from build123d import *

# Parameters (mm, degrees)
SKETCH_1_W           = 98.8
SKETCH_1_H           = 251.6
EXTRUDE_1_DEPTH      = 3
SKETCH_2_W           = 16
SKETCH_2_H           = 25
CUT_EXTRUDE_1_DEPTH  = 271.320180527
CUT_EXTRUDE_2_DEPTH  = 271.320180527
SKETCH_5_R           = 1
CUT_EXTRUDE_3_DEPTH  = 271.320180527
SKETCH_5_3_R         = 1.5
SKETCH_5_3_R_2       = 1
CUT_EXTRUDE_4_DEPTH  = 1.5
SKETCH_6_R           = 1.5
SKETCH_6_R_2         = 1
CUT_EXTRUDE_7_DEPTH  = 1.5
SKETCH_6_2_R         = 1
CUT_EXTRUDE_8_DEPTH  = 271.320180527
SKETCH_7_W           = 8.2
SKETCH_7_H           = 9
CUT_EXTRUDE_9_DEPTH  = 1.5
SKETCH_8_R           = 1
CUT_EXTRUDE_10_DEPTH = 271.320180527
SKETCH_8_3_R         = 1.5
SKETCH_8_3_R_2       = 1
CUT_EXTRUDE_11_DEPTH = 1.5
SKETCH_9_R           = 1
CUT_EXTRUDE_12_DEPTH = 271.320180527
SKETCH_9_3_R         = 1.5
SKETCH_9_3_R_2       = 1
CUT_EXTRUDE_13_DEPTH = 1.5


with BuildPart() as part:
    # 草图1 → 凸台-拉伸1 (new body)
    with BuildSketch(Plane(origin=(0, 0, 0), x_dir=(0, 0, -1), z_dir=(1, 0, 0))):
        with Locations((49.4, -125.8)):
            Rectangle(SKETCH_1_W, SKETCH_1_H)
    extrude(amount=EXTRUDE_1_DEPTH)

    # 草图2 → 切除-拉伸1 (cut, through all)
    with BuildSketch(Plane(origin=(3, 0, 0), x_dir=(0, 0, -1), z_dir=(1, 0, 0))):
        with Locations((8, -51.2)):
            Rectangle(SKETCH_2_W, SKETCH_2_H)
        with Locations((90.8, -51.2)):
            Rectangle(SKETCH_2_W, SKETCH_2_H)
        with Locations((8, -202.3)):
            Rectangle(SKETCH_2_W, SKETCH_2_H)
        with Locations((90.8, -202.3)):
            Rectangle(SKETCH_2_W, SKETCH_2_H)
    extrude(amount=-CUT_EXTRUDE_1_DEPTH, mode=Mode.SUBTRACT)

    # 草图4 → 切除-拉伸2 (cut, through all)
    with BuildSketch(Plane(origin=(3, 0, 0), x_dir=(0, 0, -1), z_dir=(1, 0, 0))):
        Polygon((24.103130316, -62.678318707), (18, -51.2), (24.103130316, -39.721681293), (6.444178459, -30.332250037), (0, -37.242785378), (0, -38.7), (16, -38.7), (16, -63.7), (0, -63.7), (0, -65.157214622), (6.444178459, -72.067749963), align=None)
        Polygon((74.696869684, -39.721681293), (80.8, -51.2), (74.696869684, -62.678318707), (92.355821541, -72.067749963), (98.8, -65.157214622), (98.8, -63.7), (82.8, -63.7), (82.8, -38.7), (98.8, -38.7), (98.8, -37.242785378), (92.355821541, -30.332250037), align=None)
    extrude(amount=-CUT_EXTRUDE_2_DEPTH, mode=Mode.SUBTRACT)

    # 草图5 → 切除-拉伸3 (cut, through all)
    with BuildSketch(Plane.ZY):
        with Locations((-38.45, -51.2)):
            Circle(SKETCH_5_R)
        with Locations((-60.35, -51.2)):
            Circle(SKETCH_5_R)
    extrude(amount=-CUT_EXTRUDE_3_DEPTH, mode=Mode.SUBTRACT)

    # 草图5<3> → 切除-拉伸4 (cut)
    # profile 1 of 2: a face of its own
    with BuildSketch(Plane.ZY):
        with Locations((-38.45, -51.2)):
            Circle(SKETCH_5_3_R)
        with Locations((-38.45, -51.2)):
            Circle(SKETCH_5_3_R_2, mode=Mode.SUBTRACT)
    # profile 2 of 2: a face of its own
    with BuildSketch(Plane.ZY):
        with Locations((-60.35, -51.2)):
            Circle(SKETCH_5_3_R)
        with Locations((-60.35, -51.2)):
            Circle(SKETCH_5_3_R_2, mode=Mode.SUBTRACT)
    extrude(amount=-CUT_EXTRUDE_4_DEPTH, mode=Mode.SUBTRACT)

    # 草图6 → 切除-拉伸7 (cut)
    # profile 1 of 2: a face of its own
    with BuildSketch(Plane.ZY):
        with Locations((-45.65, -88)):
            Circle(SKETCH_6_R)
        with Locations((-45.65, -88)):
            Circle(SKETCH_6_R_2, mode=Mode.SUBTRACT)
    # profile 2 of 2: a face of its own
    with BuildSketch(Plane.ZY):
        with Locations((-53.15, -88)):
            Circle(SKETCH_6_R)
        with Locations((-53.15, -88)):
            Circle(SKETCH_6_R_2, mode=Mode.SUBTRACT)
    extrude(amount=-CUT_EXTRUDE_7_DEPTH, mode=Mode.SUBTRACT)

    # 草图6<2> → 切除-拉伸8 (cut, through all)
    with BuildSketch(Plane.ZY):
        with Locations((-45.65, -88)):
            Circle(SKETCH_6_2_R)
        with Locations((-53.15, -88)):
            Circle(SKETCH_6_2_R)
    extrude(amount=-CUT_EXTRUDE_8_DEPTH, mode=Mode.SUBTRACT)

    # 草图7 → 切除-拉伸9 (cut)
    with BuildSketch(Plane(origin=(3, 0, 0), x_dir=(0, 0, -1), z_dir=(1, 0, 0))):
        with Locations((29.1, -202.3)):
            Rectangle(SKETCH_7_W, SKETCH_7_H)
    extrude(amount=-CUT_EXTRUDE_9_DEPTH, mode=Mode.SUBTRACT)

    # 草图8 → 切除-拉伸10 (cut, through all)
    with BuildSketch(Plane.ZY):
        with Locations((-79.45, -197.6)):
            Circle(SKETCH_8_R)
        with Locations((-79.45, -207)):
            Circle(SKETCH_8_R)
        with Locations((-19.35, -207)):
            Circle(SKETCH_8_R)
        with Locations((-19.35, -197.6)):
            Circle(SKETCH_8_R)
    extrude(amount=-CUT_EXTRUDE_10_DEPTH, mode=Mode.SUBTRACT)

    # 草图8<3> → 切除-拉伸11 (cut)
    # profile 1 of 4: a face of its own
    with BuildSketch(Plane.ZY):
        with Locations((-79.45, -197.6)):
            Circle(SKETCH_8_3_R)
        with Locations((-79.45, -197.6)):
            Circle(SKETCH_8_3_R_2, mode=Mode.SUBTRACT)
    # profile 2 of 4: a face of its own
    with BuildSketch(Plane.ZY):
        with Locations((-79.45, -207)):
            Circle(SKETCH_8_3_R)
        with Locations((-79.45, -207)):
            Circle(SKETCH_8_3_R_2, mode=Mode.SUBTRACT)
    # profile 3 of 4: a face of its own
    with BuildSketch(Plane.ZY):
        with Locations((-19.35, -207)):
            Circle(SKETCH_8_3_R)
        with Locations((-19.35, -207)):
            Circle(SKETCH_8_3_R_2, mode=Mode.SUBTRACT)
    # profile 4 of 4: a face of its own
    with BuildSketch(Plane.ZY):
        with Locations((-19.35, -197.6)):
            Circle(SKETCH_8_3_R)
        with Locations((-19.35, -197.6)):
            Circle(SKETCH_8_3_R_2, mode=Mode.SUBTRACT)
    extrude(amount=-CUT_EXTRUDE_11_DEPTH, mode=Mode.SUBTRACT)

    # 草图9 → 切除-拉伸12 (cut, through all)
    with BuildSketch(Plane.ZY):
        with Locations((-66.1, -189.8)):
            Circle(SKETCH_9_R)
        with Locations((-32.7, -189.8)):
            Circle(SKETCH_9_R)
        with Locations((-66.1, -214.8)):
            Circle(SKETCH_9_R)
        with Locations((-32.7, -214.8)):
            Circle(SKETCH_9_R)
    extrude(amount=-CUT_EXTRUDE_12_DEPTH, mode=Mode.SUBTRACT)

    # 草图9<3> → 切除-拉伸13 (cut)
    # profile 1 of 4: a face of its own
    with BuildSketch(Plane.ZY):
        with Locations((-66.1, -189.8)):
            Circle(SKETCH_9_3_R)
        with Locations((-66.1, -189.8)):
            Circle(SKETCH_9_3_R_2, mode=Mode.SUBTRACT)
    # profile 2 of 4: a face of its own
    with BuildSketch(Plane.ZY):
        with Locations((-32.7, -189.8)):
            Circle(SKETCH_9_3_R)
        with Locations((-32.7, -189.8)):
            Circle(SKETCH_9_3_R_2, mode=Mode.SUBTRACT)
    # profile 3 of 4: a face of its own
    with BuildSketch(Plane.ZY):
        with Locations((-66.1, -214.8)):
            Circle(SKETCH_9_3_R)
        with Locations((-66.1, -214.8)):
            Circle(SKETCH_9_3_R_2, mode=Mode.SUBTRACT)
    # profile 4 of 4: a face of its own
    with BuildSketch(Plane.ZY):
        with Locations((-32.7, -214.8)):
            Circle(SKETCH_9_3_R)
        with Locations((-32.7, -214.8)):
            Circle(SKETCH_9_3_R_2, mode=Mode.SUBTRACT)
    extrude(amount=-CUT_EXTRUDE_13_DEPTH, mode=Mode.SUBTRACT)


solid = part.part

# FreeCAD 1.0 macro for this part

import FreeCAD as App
import Part
import Sketcher
Q = App.Units.Quantity

doc = App.newDocument("Part")
body = doc.addObject("PartDesign::Body", "Body")

# Sketch on YZ plane
sketch1 = doc.addObject("Sketcher::SketchObject", "Sketch")
body.addObject(sketch1)
sketch1.AttachmentSupport = (doc.YZ_Plane, [""])
sketch1.MapMode = "FlatFace"
sketch1.addGeometry([
    Part.LineSegment(App.Vector(0, 0, 0), App.Vector(-251.6, 0, 0)),
    Part.LineSegment(App.Vector(-251.6, 0, 0), App.Vector(-251.6, -98.8, 0)),
    Part.LineSegment(App.Vector(-251.6, -98.8, 0), App.Vector(0, -98.8, 0)),
    Part.LineSegment(App.Vector(0, -98.8, 0), App.Vector(0, 0, 0)),
], False)
sketch1.addConstraint([
    Sketcher.Constraint("Coincident", 0, 2, 1, 1),
    Sketcher.Constraint("Coincident", 1, 2, 2, 1),
    Sketcher.Constraint("Coincident", 2, 2, 3, 1),
    Sketcher.Constraint("Coincident", 3, 2, 0, 1),
    Sketcher.Constraint("Horizontal", 0),
    Sketcher.Constraint("Vertical", 1),
    Sketcher.Constraint("Horizontal", 2),
    Sketcher.Constraint("Vertical", 3),
    Sketcher.Constraint("Coincident", 3, 2, -1, 1),
    Sketcher.Constraint("DistanceX", 0, 2, 0, 1, 251.6),
    Sketcher.Constraint("DistanceY", 1, 2, 1, 1, 98.8),
])
pad1 = doc.addObject("PartDesign::Pad", "Pad")
body.addObject(pad1)
pad1.Profile = sketch1
pad1.Length = 3

# Sketch on YZ plane
sketch2 = doc.addObject("Sketcher::SketchObject", "Sketch001")
body.addObject(sketch2)
sketch2.AttachmentSupport = (doc.YZ_Plane, [""])
sketch2.MapMode = "FlatFace"
sketch2.AttachmentOffset = App.Placement(App.Vector(0, 0, 3), App.Rotation())
sketch2.addGeometry([
    Part.LineSegment(App.Vector(-38.7, 0, 0), App.Vector(-63.7, 0, 0)),  # 0
    Part.LineSegment(App.Vector(-63.7, 0, 0), App.Vector(-63.7, -16, 0)),  # 1
    Part.LineSegment(App.Vector(-63.7, -16, 0), App.Vector(-38.7, -16, 0)),  # 2
    Part.LineSegment(App.Vector(-38.7, -16, 0), App.Vector(-38.7, 0, 0)),  # 3
    Part.LineSegment(App.Vector(-38.7, -82.8, 0), App.Vector(-63.7, -82.8, 0)),  # 4
    Part.LineSegment(App.Vector(-63.7, -82.8, 0), App.Vector(-63.7, -98.8, 0)),  # 5
    Part.LineSegment(App.Vector(-63.7, -98.8, 0), App.Vector(-38.7, -98.8, 0)),  # 6
    Part.LineSegment(App.Vector(-38.7, -98.8, 0), App.Vector(-38.7, -82.8, 0)),  # 7
    Part.LineSegment(App.Vector(-189.8, 0, 0), App.Vector(-214.8, 0, 0)),  # 8
    Part.LineSegment(App.Vector(-214.8, 0, 0), App.Vector(-214.8, -16, 0)),  # 9
    Part.LineSegment(App.Vector(-214.8, -16, 0), App.Vector(-189.8, -16, 0)),  # 10
    Part.LineSegment(App.Vector(-189.8, -16, 0), App.Vector(-189.8, 0, 0)),  # 11
    Part.LineSegment(App.Vector(-189.8, -82.8, 0), App.Vector(-214.8, -82.8, 0)),  # 12
    Part.LineSegment(App.Vector(-214.8, -82.8, 0), App.Vector(-214.8, -98.8, 0)),  # 13
    Part.LineSegment(App.Vector(-214.8, -98.8, 0), App.Vector(-189.8, -98.8, 0)),  # 14
    Part.LineSegment(App.Vector(-189.8, -98.8, 0), App.Vector(-189.8, -82.8, 0)),  # 15
], False)
sketch2.addConstraint([
    Sketcher.Constraint("Coincident", 0, 2, 1, 1),
    Sketcher.Constraint("Coincident", 1, 2, 2, 1),
    Sketcher.Constraint("Coincident", 2, 2, 3, 1),
    Sketcher.Constraint("Coincident", 3, 2, 0, 1),
    Sketcher.Constraint("Coincident", 4, 2, 5, 1),
    Sketcher.Constraint("Coincident", 5, 2, 6, 1),
    Sketcher.Constraint("Coincident", 6, 2, 7, 1),
    Sketcher.Constraint("Coincident", 7, 2, 4, 1),
    Sketcher.Constraint("Coincident", 8, 2, 9, 1),
    Sketcher.Constraint("Coincident", 9, 2, 10, 1),
    Sketcher.Constraint("Coincident", 10, 2, 11, 1),
    Sketcher.Constraint("Coincident", 11, 2, 8, 1),
    Sketcher.Constraint("Coincident", 12, 2, 13, 1),
    Sketcher.Constraint("Coincident", 13, 2, 14, 1),
    Sketcher.Constraint("Coincident", 14, 2, 15, 1),
    Sketcher.Constraint("Coincident", 15, 2, 12, 1),
    Sketcher.Constraint("Horizontal", 0),
    Sketcher.Constraint("Vertical", 1),
    Sketcher.Constraint("Horizontal", 2),
    Sketcher.Constraint("Vertical", 3),
    Sketcher.Constraint("Horizontal", 4),
    Sketcher.Constraint("Vertical", 5),
    Sketcher.Constraint("Horizontal", 6),
    Sketcher.Constraint("Vertical", 7),
    Sketcher.Constraint("Horizontal", 8),
    Sketcher.Constraint("Vertical", 9),
    Sketcher.Constraint("Horizontal", 10),
    Sketcher.Constraint("Vertical", 11),
    Sketcher.Constraint("Horizontal", 12),
    Sketcher.Constraint("Vertical", 13),
    Sketcher.Constraint("Horizontal", 14),
    Sketcher.Constraint("Vertical", 15),
    Sketcher.Constraint("PointOnObject", 0, 2, -1),
    Sketcher.Constraint("PointOnObject", 8, 2, -1),
    Sketcher.Constraint("Horizontal", 2, 2, 9, 2),
    Sketcher.Constraint("Horizontal", 7, 2, 12, 2),
    Sketcher.Constraint("Horizontal", 6, 2, 13, 2),
    Sketcher.Constraint("Vertical", 1, 2, 4, 2),
    Sketcher.Constraint("Vertical", 3, 2, 6, 2),
    Sketcher.Constraint("Vertical", 9, 2, 12, 2),
    Sketcher.Constraint("Vertical", 11, 2, 14, 2),
    Sketcher.Constraint("Equal", 6, 8),
    Sketcher.Constraint("Equal", 3, 5),
    Sketcher.Constraint("DistanceX", 0, 2, 0, 1, 25.0),
    Sketcher.Constraint("DistanceY", 1, 2, 1, 1, 16.0),
    Sketcher.Constraint("DistanceX", 0, 2, -1, 1, 63.7),
    Sketcher.Constraint("DistanceY", 4, 2, -1, 1, 82.8),
    Sketcher.Constraint("DistanceX", 8, 2, -1, 1, 214.8),
])
pocket1 = doc.addObject("PartDesign::Pocket", "Pocket")
body.addObject(pocket1)
pocket1.Profile = sketch2
pocket1.Type = "ThroughAll"

# Sketch on YZ plane
sketch3 = doc.addObject("Sketcher::SketchObject", "Sketch002")
body.addObject(sketch3)
sketch3.AttachmentSupport = (doc.YZ_Plane, [""])
sketch3.MapMode = "FlatFace"
sketch3.AttachmentOffset = App.Placement(App.Vector(0, 0, 3), App.Rotation())
sketch3.addGeometry([
    Part.LineSegment(App.Vector(-62.678319, -24.10313, 0), App.Vector(-51.2, -18, 0)),  # 0
    Part.LineSegment(App.Vector(-51.2, -18, 0), App.Vector(-39.721681, -24.10313, 0)),  # 1
    Part.LineSegment(App.Vector(-39.721681, -24.10313, 0), App.Vector(-30.33225, -6.444178, 0)),  # 2
    Part.LineSegment(App.Vector(-30.33225, -6.444178, 0), App.Vector(-37.242785, 0, 0)),  # 3
    Part.LineSegment(App.Vector(-37.242785, 0, 0), App.Vector(-38.7, 0, 0)),  # 4
    Part.LineSegment(App.Vector(-38.7, 0, 0), App.Vector(-38.7, -16, 0)),  # 5
    Part.LineSegment(App.Vector(-38.7, -16, 0), App.Vector(-63.7, -16, 0)),  # 6
    Part.LineSegment(App.Vector(-63.7, -16, 0), App.Vector(-63.7, 0, 0)),  # 7
    Part.LineSegment(App.Vector(-63.7, 0, 0), App.Vector(-65.157215, 0, 0)),  # 8
    Part.LineSegment(App.Vector(-65.157215, 0, 0), App.Vector(-72.06775, -6.444178, 0)),  # 9
    Part.LineSegment(App.Vector(-72.06775, -6.444178, 0), App.Vector(-62.678319, -24.10313, 0)),  # 10
    Part.LineSegment(App.Vector(-39.721681, -74.69687, 0), App.Vector(-51.2, -80.8, 0)),  # 11
    Part.LineSegment(App.Vector(-51.2, -80.8, 0), App.Vector(-62.678319, -74.69687, 0)),  # 12
    Part.LineSegment(App.Vector(-62.678319, -74.69687, 0), App.Vector(-72.06775, -92.355822, 0)),  # 13
    Part.LineSegment(App.Vector(-72.06775, -92.355822, 0), App.Vector(-65.157215, -98.8, 0)),  # 14
    Part.LineSegment(App.Vector(-65.157215, -98.8, 0), App.Vector(-63.7, -98.8, 0)),  # 15
    Part.LineSegment(App.Vector(-63.7, -98.8, 0), App.Vector(-63.7, -82.8, 0)),  # 16
    Part.LineSegment(App.Vector(-63.7, -82.8, 0), App.Vector(-38.7, -82.8, 0)),  # 17
    Part.LineSegment(App.Vector(-38.7, -82.8, 0), App.Vector(-38.7, -98.8, 0)),  # 18
    Part.LineSegment(App.Vector(-38.7, -98.8, 0), App.Vector(-37.242785, -98.8, 0)),  # 19
    Part.LineSegment(App.Vector(-37.242785, -98.8, 0), App.Vector(-30.33225, -92.355822, 0)),  # 20
    Part.LineSegment(App.Vector(-30.33225, -92.355822, 0), App.Vector(-39.721681, -74.69687, 0)),  # 21
], False)
sketch3.addConstraint([
    Sketcher.Constraint("Coincident", 0, 2, 1, 1),
    Sketcher.Constraint("Coincident", 1, 2, 2, 1),
    Sketcher.Constraint("Coincident", 2, 2, 3, 1),
    Sketcher.Constraint("Coincident", 3, 2, 4, 1),
    Sketcher.Constraint("Coincident", 4, 2, 5, 1),
    Sketcher.Constraint("Coincident", 5, 2, 6, 1),
    Sketcher.Constraint("Coincident", 6, 2, 7, 1),
    Sketcher.Constraint("Coincident", 7, 2, 8, 1),
    Sketcher.Constraint("Coincident", 8, 2, 9, 1),
    Sketcher.Constraint("Coincident", 9, 2, 10, 1),
    Sketcher.Constraint("Coincident", 10, 2, 0, 1),
    Sketcher.Constraint("Coincident", 11, 2, 12, 1),
    Sketcher.Constraint("Coincident", 12, 2, 13, 1),
    Sketcher.Constraint("Coincident", 13, 2, 14, 1),
    Sketcher.Constraint("Coincident", 14, 2, 15, 1),
    Sketcher.Constraint("Coincident", 15, 2, 16, 1),
    Sketcher.Constraint("Coincident", 16, 2, 17, 1),
    Sketcher.Constraint("Coincident", 17, 2, 18, 1),
    Sketcher.Constraint("Coincident", 18, 2, 19, 1),
    Sketcher.Constraint("Coincident", 19, 2, 20, 1),
    Sketcher.Constraint("Coincident", 20, 2, 21, 1),
    Sketcher.Constraint("Coincident", 21, 2, 11, 1),
    Sketcher.Constraint("Horizontal", 4),
    Sketcher.Constraint("Vertical", 5),
    Sketcher.Constraint("Horizontal", 6),
    Sketcher.Constraint("Vertical", 7),
    Sketcher.Constraint("Horizontal", 8),
    Sketcher.Constraint("Horizontal", 15),
    Sketcher.Constraint("Vertical", 16),
    Sketcher.Constraint("Horizontal", 17),
    Sketcher.Constraint("Vertical", 18),
    Sketcher.Constraint("Horizontal", 19),
    Sketcher.Constraint("PointOnObject", 3, 2, -1),
    Sketcher.Constraint("PointOnObject", 7, 2, -1),
    Sketcher.Constraint("Perpendicular", 1, 2),
    Sketcher.Constraint("Perpendicular", 0, 10),
    Sketcher.Constraint("Perpendicular", 10, 11),
    Sketcher.Constraint("Perpendicular", 2, 12),
    Sketcher.Constraint("Perpendicular", 12, 13),
    Sketcher.Constraint("Parallel", 3, 14),
    Sketcher.Constraint("Parallel", 9, 20),
    Sketcher.Constraint("Perpendicular", 11, 21),
    Sketcher.Constraint("Horizontal", 2, 2, 9, 2),
    Sketcher.Constraint("Horizontal", 1, 2, 10, 2),
    Sketcher.Constraint("Horizontal", 15, 2, 18, 2),
    Sketcher.Constraint("Horizontal", 13, 2, 20, 2),
    Sketcher.Constraint("Horizontal", 12, 2, 21, 2),
    Sketcher.Constraint("Vertical", 0, 2, 11, 2),
    Sketcher.Constraint("Vertical", 10, 2, 12, 2),
    Sketcher.Constraint("Vertical", 9, 2, 13, 2),
    Sketcher.Constraint("Vertical", 8, 2, 14, 2),
    Sketcher.Constraint("Vertical", 7, 2, 15, 2),
    Sketcher.Constraint("Vertical", 5, 2, 17, 2),
    Sketcher.Constraint("Vertical", 3, 2, 19, 2),
    Sketcher.Constraint("Vertical", 2, 2, 20, 2),
    Sketcher.Constraint("Equal", 4, 8),
    Sketcher.Constraint("Equal", 7, 16),
    Sketcher.Constraint("DistanceX", 6, 2, 6, 1, 25.0),
    Sketcher.Constraint("DistanceY", 5, 2, 5, 1, 16.0),
    Sketcher.Constraint("Angle", 0, Q("28 deg")),
    Sketcher.Constraint("Angle", 3, Q("137 deg")),
    Sketcher.Constraint("Distance", 0, 13.0),
    Sketcher.Constraint("Distance", 2, 20.0),
    Sketcher.Constraint("DistanceY", 0, 2, -1, 1, 18.0),
    Sketcher.Constraint("DistanceX", 0, 2, -1, 1, 51.2),
    Sketcher.Constraint("DistanceY", 11, 2, -1, 1, 80.8),
])
pocket2 = doc.addObject("PartDesign::Pocket", "Pocket001")
body.addObject(pocket2)
pocket2.Profile = sketch3
pocket2.Type = "ThroughAll"

# Sketch on YZ plane
sketch4 = doc.addObject("Sketcher::SketchObject", "Sketch003")
body.addObject(sketch4)
sketch4.AttachmentSupport = (doc.YZ_Plane, [""])
sketch4.MapMode = "FlatFace"
sketch4.addGeometry([
    Part.Circle(App.Vector(-51.2, -38.45, 0), App.Vector(0, 0, 1), 1),
    Part.Circle(App.Vector(-51.2, -60.35, 0), App.Vector(0, 0, 1), 1),
], False)
sketch4.addConstraint([
    Sketcher.Constraint("Equal", 0, 1),
    Sketcher.Constraint("Vertical", 0, 3, 1, 3),
    Sketcher.Constraint("Diameter", 0, 2.0),
    Sketcher.Constraint("DistanceX", 0, 3, -1, 1, 51.2),
    Sketcher.Constraint("DistanceY", 1, 3, 0, 3, 21.9),
    Sketcher.Constraint("DistanceY", 0, 3, -1, 1, 38.45),
])
pocket3 = doc.addObject("PartDesign::Pocket", "Pocket002")
body.addObject(pocket3)
pocket3.Profile = sketch4
pocket3.Type = "ThroughAll"
pocket3.Reversed = True

# Sketch on YZ plane
sketch5 = doc.addObject("Sketcher::SketchObject", "Sketch004")
body.addObject(sketch5)
sketch5.AttachmentSupport = (doc.YZ_Plane, [""])
sketch5.MapMode = "FlatFace"
sketch5.addGeometry([
    Part.Circle(App.Vector(-51.2, -38.45, 0), App.Vector(0, 0, 1), 1.5),
    Part.Circle(App.Vector(-51.2, -38.45, 0), App.Vector(0, 0, 1), 1),
    Part.Circle(App.Vector(-51.2, -60.35, 0), App.Vector(0, 0, 1), 1.5),
    Part.Circle(App.Vector(-51.2, -60.35, 0), App.Vector(0, 0, 1), 1),
], False)
sketch5.addConstraint([
    Sketcher.Constraint("Coincident", 1, 3, 0, 3),
    Sketcher.Constraint("Coincident", 3, 3, 2, 3),
    Sketcher.Constraint("Equal", 0, 2),
    Sketcher.Constraint("Equal", 1, 3),
    Sketcher.Constraint("Vertical", 1, 3, 2, 3),
    Sketcher.Constraint("Diameter", 0, 3.0),
    Sketcher.Constraint("Diameter", 1, 2.0),
    Sketcher.Constraint("DistanceX", 0, 3, -1, 1, 51.2),
    Sketcher.Constraint("DistanceY", 2, 3, 0, 3, 21.9),
    Sketcher.Constraint("DistanceY", 0, 3, -1, 1, 38.45),
])
pocket4 = doc.addObject("PartDesign::Pocket", "Pocket003")
body.addObject(pocket4)
pocket4.Profile = sketch5
pocket4.Length = 1.5
pocket4.Reversed = True

# Sketch on YZ plane
sketch6 = doc.addObject("Sketcher::SketchObject", "Sketch005")
body.addObject(sketch6)
sketch6.AttachmentSupport = (doc.YZ_Plane, [""])
sketch6.MapMode = "FlatFace"
sketch6.addGeometry([
    Part.Circle(App.Vector(-88, -45.65, 0), App.Vector(0, 0, 1), 1.5),
    Part.Circle(App.Vector(-88, -45.65, 0), App.Vector(0, 0, 1), 1),
    Part.Circle(App.Vector(-88, -53.15, 0), App.Vector(0, 0, 1), 1.5),
    Part.Circle(App.Vector(-88, -53.15, 0), App.Vector(0, 0, 1), 1),
], False)
sketch6.addConstraint([
    Sketcher.Constraint("Coincident", 1, 3, 0, 3),
    Sketcher.Constraint("Coincident", 3, 3, 2, 3),
    Sketcher.Constraint("Equal", 0, 2),
    Sketcher.Constraint("Equal", 1, 3),
    Sketcher.Constraint("Vertical", 1, 3, 2, 3),
    Sketcher.Constraint("Diameter", 0, 3.0),
    Sketcher.Constraint("Diameter", 1, 2.0),
    Sketcher.Constraint("DistanceX", 0, 3, -1, 1, 88.0),
    Sketcher.Constraint("DistanceY", 2, 3, 0, 3, 7.5),
    Sketcher.Constraint("DistanceY", 0, 3, -1, 1, 45.65),
])
pocket5 = doc.addObject("PartDesign::Pocket", "Pocket004")
body.addObject(pocket5)
pocket5.Profile = sketch6
pocket5.Length = 1.5
pocket5.Reversed = True

# Sketch on YZ plane
sketch7 = doc.addObject("Sketcher::SketchObject", "Sketch006")
body.addObject(sketch7)
sketch7.AttachmentSupport = (doc.YZ_Plane, [""])
sketch7.MapMode = "FlatFace"
sketch7.addGeometry([
    Part.Circle(App.Vector(-88, -45.65, 0), App.Vector(0, 0, 1), 1),
    Part.Circle(App.Vector(-88, -53.15, 0), App.Vector(0, 0, 1), 1),
], False)
sketch7.addConstraint([
    Sketcher.Constraint("Equal", 0, 1),
    Sketcher.Constraint("Vertical", 0, 3, 1, 3),
    Sketcher.Constraint("Diameter", 0, 2.0),
    Sketcher.Constraint("DistanceX", 0, 3, -1, 1, 88.0),
    Sketcher.Constraint("DistanceY", 1, 3, 0, 3, 7.5),
    Sketcher.Constraint("DistanceY", 0, 3, -1, 1, 45.65),
])
pocket6 = doc.addObject("PartDesign::Pocket", "Pocket005")
body.addObject(pocket6)
pocket6.Profile = sketch7
pocket6.Type = "ThroughAll"
pocket6.Reversed = True

# Sketch on YZ plane
sketch8 = doc.addObject("Sketcher::SketchObject", "Sketch007")
body.addObject(sketch8)
sketch8.AttachmentSupport = (doc.YZ_Plane, [""])
sketch8.MapMode = "FlatFace"
sketch8.AttachmentOffset = App.Placement(App.Vector(0, 0, 3), App.Rotation())
sketch8.addGeometry([
    Part.LineSegment(App.Vector(-197.8, -25, 0), App.Vector(-206.8, -25, 0)),
    Part.LineSegment(App.Vector(-206.8, -25, 0), App.Vector(-206.8, -33.2, 0)),
    Part.LineSegment(App.Vector(-206.8, -33.2, 0), App.Vector(-197.8, -33.2, 0)),
    Part.LineSegment(App.Vector(-197.8, -33.2, 0), App.Vector(-197.8, -25, 0)),
], False)
sketch8.addConstraint([
    Sketcher.Constraint("Coincident", 0, 2, 1, 1),
    Sketcher.Constraint("Coincident", 1, 2, 2, 1),
    Sketcher.Constraint("Coincident", 2, 2, 3, 1),
    Sketcher.Constraint("Coincident", 3, 2, 0, 1),
    Sketcher.Constraint("Horizontal", 0),
    Sketcher.Constraint("Vertical", 1),
    Sketcher.Constraint("Horizontal", 2),
    Sketcher.Constraint("Vertical", 3),
    Sketcher.Constraint("DistanceX", 0, 2, 0, 1, 9.0),
    Sketcher.Constraint("DistanceY", 1, 2, 1, 1, 8.2),
    Sketcher.Constraint("DistanceY", 0, 2, -1, 1, 25.0),
    Sketcher.Constraint("DistanceX", 0, 2, -1, 1, 206.8),
])
pocket7 = doc.addObject("PartDesign::Pocket", "Pocket006")
body.addObject(pocket7)
pocket7.Profile = sketch8
pocket7.Length = 1.5

# Sketch on YZ plane
sketch9 = doc.addObject("Sketcher::SketchObject", "Sketch008")
body.addObject(sketch9)
sketch9.AttachmentSupport = (doc.YZ_Plane, [""])
sketch9.MapMode = "FlatFace"
sketch9.addGeometry([
    Part.Circle(App.Vector(-197.6, -79.45, 0), App.Vector(0, 0, 1), 1),
    Part.Circle(App.Vector(-207, -79.45, 0), App.Vector(0, 0, 1), 1),
    Part.Circle(App.Vector(-207, -19.35, 0), App.Vector(0, 0, 1), 1),
    Part.Circle(App.Vector(-197.6, -19.35, 0), App.Vector(0, 0, 1), 1),
], False)
sketch9.addConstraint([
    Sketcher.Constraint("Equal", 0, 1),
    Sketcher.Constraint("Equal", 1, 2),
    Sketcher.Constraint("Equal", 2, 3),
    Sketcher.Constraint("Horizontal", 0, 3, 1, 3),
    Sketcher.Constraint("Horizontal", 2, 3, 3, 3),
    Sketcher.Constraint("Vertical", 1, 3, 2, 3),
    Sketcher.Constraint("Vertical", 0, 3, 3, 3),
    Sketcher.Constraint("Diameter", 0, 2.0),
    Sketcher.Constraint("DistanceX", 1, 3, -1, 1, 207.0),
    Sketcher.Constraint("DistanceX", 0, 3, -1, 1, 197.6),
    Sketcher.Constraint("DistanceY", 1, 3, 2, 3, 60.1),
    Sketcher.Constraint("DistanceY", 0, 3, -1, 1, 79.45),
])
pocket8 = doc.addObject("PartDesign::Pocket", "Pocket007")
body.addObject(pocket8)
pocket8.Profile = sketch9
pocket8.Type = "ThroughAll"
pocket8.Reversed = True

# Sketch on YZ plane
sketch10 = doc.addObject("Sketcher::SketchObject", "Sketch009")
body.addObject(sketch10)
sketch10.AttachmentSupport = (doc.YZ_Plane, [""])
sketch10.MapMode = "FlatFace"
sketch10.addGeometry([
    Part.Circle(App.Vector(-197.6, -79.45, 0), App.Vector(0, 0, 1), 1.5),  # 0
    Part.Circle(App.Vector(-197.6, -79.45, 0), App.Vector(0, 0, 1), 1),  # 1
    Part.Circle(App.Vector(-207, -79.45, 0), App.Vector(0, 0, 1), 1.5),  # 2
    Part.Circle(App.Vector(-207, -79.45, 0), App.Vector(0, 0, 1), 1),  # 3
    Part.Circle(App.Vector(-207, -19.35, 0), App.Vector(0, 0, 1), 1.5),  # 4
    Part.Circle(App.Vector(-207, -19.35, 0), App.Vector(0, 0, 1), 1),  # 5
    Part.Circle(App.Vector(-197.6, -19.35, 0), App.Vector(0, 0, 1), 1.5),  # 6
    Part.Circle(App.Vector(-197.6, -19.35, 0), App.Vector(0, 0, 1), 1),  # 7
], False)
sketch10.addConstraint([
    Sketcher.Constraint("Coincident", 1, 3, 0, 3),
    Sketcher.Constraint("Coincident", 3, 3, 2, 3),
    Sketcher.Constraint("Coincident", 5, 3, 4, 3),
    Sketcher.Constraint("Coincident", 7, 3, 6, 3),
    Sketcher.Constraint("Equal", 0, 2),
    Sketcher.Constraint("Equal", 1, 3),
    Sketcher.Constraint("Equal", 2, 4),
    Sketcher.Constraint("Equal", 3, 5),
    Sketcher.Constraint("Equal", 4, 6),
    Sketcher.Constraint("Equal", 5, 7),
    Sketcher.Constraint("Horizontal", 1, 3, 2, 3),
    Sketcher.Constraint("Horizontal", 5, 3, 6, 3),
    Sketcher.Constraint("Vertical", 3, 3, 4, 3),
    Sketcher.Constraint("Vertical", 1, 3, 6, 3),
    Sketcher.Constraint("Diameter", 0, 3.0),
    Sketcher.Constraint("Diameter", 1, 2.0),
    Sketcher.Constraint("DistanceX", 2, 3, -1, 1, 207.0),
    Sketcher.Constraint("DistanceX", 0, 3, -1, 1, 197.6),
    Sketcher.Constraint("DistanceY", 2, 3, 4, 3, 60.1),
    Sketcher.Constraint("DistanceY", 0, 3, -1, 1, 79.45),
])
pocket9 = doc.addObject("PartDesign::Pocket", "Pocket008")
body.addObject(pocket9)
pocket9.Profile = sketch10
pocket9.Length = 1.5
pocket9.Reversed = True

# Sketch on YZ plane
sketch11 = doc.addObject("Sketcher::SketchObject", "Sketch010")
body.addObject(sketch11)
sketch11.AttachmentSupport = (doc.YZ_Plane, [""])
sketch11.MapMode = "FlatFace"
sketch11.addGeometry([
    Part.Circle(App.Vector(-189.8, -66.1, 0), App.Vector(0, 0, 1), 1),
    Part.Circle(App.Vector(-189.8, -32.7, 0), App.Vector(0, 0, 1), 1),
    Part.Circle(App.Vector(-214.8, -66.1, 0), App.Vector(0, 0, 1), 1),
    Part.Circle(App.Vector(-214.8, -32.7, 0), App.Vector(0, 0, 1), 1),
], False)
sketch11.addConstraint([
    Sketcher.Constraint("Equal", 0, 1),
    Sketcher.Constraint("Equal", 1, 2),
    Sketcher.Constraint("Equal", 2, 3),
    Sketcher.Constraint("Horizontal", 0, 3, 2, 3),
    Sketcher.Constraint("Horizontal", 1, 3, 3, 3),
    Sketcher.Constraint("Vertical", 0, 3, 1, 3),
    Sketcher.Constraint("Vertical", 2, 3, 3, 3),
    Sketcher.Constraint("Diameter", 0, 2.0),
    Sketcher.Constraint("DistanceX", 2, 3, 0, 3, 25.0),
    Sketcher.Constraint("DistanceX", 0, 3, -1, 1, 189.8),
    Sketcher.Constraint("DistanceY", 0, 3, -1, 1, 66.1),
    Sketcher.Constraint("DistanceY", 1, 3, -1, 1, 32.7),
])
pocket10 = doc.addObject("PartDesign::Pocket", "Pocket009")
body.addObject(pocket10)
pocket10.Profile = sketch11
pocket10.Type = "ThroughAll"
pocket10.Reversed = True

# Sketch on YZ plane
sketch12 = doc.addObject("Sketcher::SketchObject", "Sketch011")
body.addObject(sketch12)
sketch12.AttachmentSupport = (doc.YZ_Plane, [""])
sketch12.MapMode = "FlatFace"
sketch12.addGeometry([
    Part.Circle(App.Vector(-189.8, -66.1, 0), App.Vector(0, 0, 1), 1.5),  # 0
    Part.Circle(App.Vector(-189.8, -66.1, 0), App.Vector(0, 0, 1), 1),  # 1
    Part.Circle(App.Vector(-189.8, -32.7, 0), App.Vector(0, 0, 1), 1.5),  # 2
    Part.Circle(App.Vector(-189.8, -32.7, 0), App.Vector(0, 0, 1), 1),  # 3
    Part.Circle(App.Vector(-214.8, -66.1, 0), App.Vector(0, 0, 1), 1.5),  # 4
    Part.Circle(App.Vector(-214.8, -66.1, 0), App.Vector(0, 0, 1), 1),  # 5
    Part.Circle(App.Vector(-214.8, -32.7, 0), App.Vector(0, 0, 1), 1.5),  # 6
    Part.Circle(App.Vector(-214.8, -32.7, 0), App.Vector(0, 0, 1), 1),  # 7
], False)
sketch12.addConstraint([
    Sketcher.Constraint("Coincident", 1, 3, 0, 3),
    Sketcher.Constraint("Coincident", 3, 3, 2, 3),
    Sketcher.Constraint("Coincident", 5, 3, 4, 3),
    Sketcher.Constraint("Coincident", 7, 3, 6, 3),
    Sketcher.Constraint("Equal", 0, 2),
    Sketcher.Constraint("Equal", 1, 3),
    Sketcher.Constraint("Equal", 2, 4),
    Sketcher.Constraint("Equal", 3, 5),
    Sketcher.Constraint("Equal", 4, 6),
    Sketcher.Constraint("Equal", 5, 7),
    Sketcher.Constraint("Horizontal", 1, 3, 4, 3),
    Sketcher.Constraint("Horizontal", 3, 3, 6, 3),
    Sketcher.Constraint("Vertical", 1, 3, 2, 3),
    Sketcher.Constraint("Vertical", 5, 3, 6, 3),
    Sketcher.Constraint("Diameter", 0, 3.0),
    Sketcher.Constraint("Diameter", 1, 2.0),
    Sketcher.Constraint("DistanceX", 4, 3, 0, 3, 25.0),
    Sketcher.Constraint("DistanceX", 0, 3, -1, 1, 189.8),
    Sketcher.Constraint("DistanceY", 0, 3, -1, 1, 66.1),
    Sketcher.Constraint("DistanceY", 2, 3, -1, 1, 32.7),
])
pocket11 = doc.addObject("PartDesign::Pocket", "Pocket010")
body.addObject(pocket11)
pocket11.Profile = sketch12
pocket11.Length = 1.5
pocket11.Reversed = True

doc.recompute()
